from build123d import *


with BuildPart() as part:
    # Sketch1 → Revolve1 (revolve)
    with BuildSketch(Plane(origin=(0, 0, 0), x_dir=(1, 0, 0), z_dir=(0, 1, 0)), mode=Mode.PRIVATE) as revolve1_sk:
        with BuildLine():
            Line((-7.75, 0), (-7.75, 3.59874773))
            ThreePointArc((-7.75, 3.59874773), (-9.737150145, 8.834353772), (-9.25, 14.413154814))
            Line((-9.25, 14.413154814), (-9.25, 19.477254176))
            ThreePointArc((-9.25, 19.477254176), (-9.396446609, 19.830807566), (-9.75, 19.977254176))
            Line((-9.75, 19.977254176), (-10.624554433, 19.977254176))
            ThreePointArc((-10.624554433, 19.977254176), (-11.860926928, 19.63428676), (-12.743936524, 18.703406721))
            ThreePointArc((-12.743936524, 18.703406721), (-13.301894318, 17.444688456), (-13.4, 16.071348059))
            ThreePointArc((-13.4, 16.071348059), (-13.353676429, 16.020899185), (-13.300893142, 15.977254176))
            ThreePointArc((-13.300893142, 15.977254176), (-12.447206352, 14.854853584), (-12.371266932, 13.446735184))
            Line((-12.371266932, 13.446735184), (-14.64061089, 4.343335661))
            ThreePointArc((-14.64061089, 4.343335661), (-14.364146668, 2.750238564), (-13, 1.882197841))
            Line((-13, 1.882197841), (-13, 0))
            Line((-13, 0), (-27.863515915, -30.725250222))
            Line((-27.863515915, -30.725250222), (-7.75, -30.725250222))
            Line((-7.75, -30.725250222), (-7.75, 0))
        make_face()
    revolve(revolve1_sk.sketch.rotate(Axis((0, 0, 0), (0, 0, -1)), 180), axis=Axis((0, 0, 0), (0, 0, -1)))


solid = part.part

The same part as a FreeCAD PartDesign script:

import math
import FreeCAD as App
import Part
import Sketcher

V = App.Vector

doc = App.newDocument("Part")
params = doc.addObject("Spreadsheet::Sheet", "Params")
for row, (alias, value) in enumerate([
    ("sketch1_radius", "4 mm"),
    ("sketch1_radius2", "2 mm"),
    ("sketch1_radius3", "0.5 mm"),
    ("sketch1_radius4", "2.4 mm"),
    ("revolution_angle", "360 deg"),
], start=1):
    params.set(f"A{row}", alias)
    params.set(f"B{row}", "=" + value)
    params.setAlias(f"B{row}", alias)

body = doc.addObject("PartDesign::Body", "Body")

sketch1 = doc.addObject("Sketcher::SketchObject", "Sketch")
body.addObject(sketch1)
sketch1.AttachmentSupport = (doc.XZ_Plane, [""])
sketch1.MapMode = "FlatFace"
sketch1.addGeometry([
    Part.ArcOfCircle(Part.Circle(V(2.7, -10.56, 0), V(0, 0, 1), 12.55), math.radians(146), math.radians(198)),
    Part.LineSegment(V(-9.25, -14.41, 0), V(-9.25, -19.48, 0)),
    Part.ArcOfCircle(Part.Circle(V(-9.75, -19.48, 0), V(0, 0, 1), 0.5), math.radians(-90), math.radians(0)),
    Part.LineSegment(V(-9.75, -19.98, 0), V(-10.62, -19.98, 0)),
    Part.ArcOfCircle(Part.Circle(V(-10.62, -17.58, 0), V(0, 0, 1), 2.4), math.radians(-152), math.radians(-90)),
    Part.ArcOfCircle(Part.Circle(V(-9.42, -16.48, 0), V(0, 0, 1), 4), math.radians(174), math.radians(214)),
    Part.ArcOfCircle(Part.Circle(V(-13.01, -16.38, 0), V(0, 0, 1), 0.5), math.radians(125.66), math.radians(141.37)),
    Part.ArcOfCircle(Part.Circle(V(-14.7, -14.03, 0), V(0, 0, 1), 2.4), math.radians(-54), math.radians(14)),
    Part.LineSegment(V(-12.37, -13.45, 0), V(-14.64, -4.34, 0)),
    Part.ArcOfCircle(Part.Circle(V(-12.7, -3.86, 0), V(0, 0, 1), 2), math.radians(99), math.radians(194)),
    Part.LineSegment(V(-13, -1.88, 0), V(-13, 0, 0)),
    Part.LineSegment(V(-13, 0, 0), V(-27.86, 30.73, 0)),
    Part.LineSegment(V(-27.86, 30.73, 0), V(-7.75, 30.73, 0)),
    Part.LineSegment(V(-7.75, 30.73, 0), V(-7.75, -3.6, 0)),
], False)
sketch1.addConstraint([
    Sketcher.Constraint("Coincident", 0, 2, 1, 1),
    Sketcher.Constraint("Tangent", 1, 2, 2, 2),
    Sketcher.Constraint("Tangent", 2, 1, 3, 1),
    Sketcher.Constraint("Tangent", 3, 2, 4, 2),
    Sketcher.Constraint("Coincident", 4, 1, 5, 2),
    Sketcher.Constraint("Coincident", 5, 1, 6, 2),
    Sketcher.Constraint("Tangent", 6, 1, 7, 1),
    Sketcher.Constraint("Tangent", 7, 2, 8, 1),
    Sketcher.Constraint("Tangent", 8, 2, 9, 2),
    Sketcher.Constraint("Coincident", 9, 1, 10, 1),
    Sketcher.Constraint("Coincident", 10, 2, 11, 1),
    Sketcher.Constraint("Coincident", 11, 2, 12, 1),
    Sketcher.Constraint("Coincident", 12, 2, 13, 1),
    Sketcher.Constraint("Coincident", 13, 2, 0, 1),
    Sketcher.Constraint("Vertical", 1),
    Sketcher.Constraint("Horizontal", 3),
    Sketcher.Constraint("Vertical", 10),
    Sketcher.Constraint("Horizontal", 12),
    Sketcher.Constraint("Vertical", 13),
    Sketcher.Constraint("Equal", 2, 6),
    Sketcher.Constraint("Equal", 4, 7),
    Sketcher.Constraint("PointOnObject", 10, 2, -1),
    Sketcher.Constraint("Radius", 5, 4.0),
    Sketcher.Constraint("Radius", 9, 2.0),
    Sketcher.Constraint("Radius", 2, 0.5),
    Sketcher.Constraint("Radius", 4, 2.4),
    Sketcher.Constraint("DistanceX", 9, 1, -1, 1, 13.0),
    Sketcher.Constraint("DistanceY", 2, 3, 5, 3, 3.0),
    Sketcher.Constraint("DistanceX", 7, 3, 9, 3, 2.0),
    Sketcher.Constraint("DistanceX", 7, 3, -1, 1, 14.7),
    Sketcher.Constraint("DistanceX", 5, 1, -1, 1, 13.4),
    Sketcher.Constraint("DistanceY", 4, 3, 6, 1, 1.6),
    Sketcher.Constraint("DistanceX", 2, 3, -1, 1, 9.75),
    Sketcher.Constraint("DistanceX", 12, 2, -1, 1, 7.75),
    Sketcher.Constraint("DistanceY", 4, 3, 7, 3, 3.55),
    Sketcher.Constraint("DistanceY", 1, 2, 1, 1, 5.064099),
    Sketcher.Constraint("Radius", 0, 12.554237),
    Sketcher.Constraint("DistanceY", 7, 2, 8, 2, 9.1034),
    Sketcher.Constraint("DistanceX", 3, 2, 3, 1, 0.874554),
    Sketcher.Constraint("DistanceX", 12, 1, 12, 2, 20.113516),
    Sketcher.Constraint("DistanceY", 10, 1, 10, 2, 1.882198),
    Sketcher.Constraint("DistanceY", 13, 2, 13, 1, 34.323998),
    Sketcher.Constraint("DistanceX", -1, 1, 0, 3, 2.698038),
])
sketch1.setExpression("Constraints[22]", "Params.sketch1_radius")
sketch1.setExpression("Constraints[23]", "Params.sketch1_radius2")
sketch1.setExpression("Constraints[24]", "Params.sketch1_radius3")
sketch1.setExpression("Constraints[25]", "Params.sketch1_radius4")
revolution = doc.addObject("PartDesign::Revolution", "Revolution")
body.addObject(revolution)
revolution.Profile = sketch1
revolution.ReferenceAxis = (sketch1, ["V_Axis"])
revolution.setExpression("Angle", "Params.revolution_angle")

doc.recompute()
